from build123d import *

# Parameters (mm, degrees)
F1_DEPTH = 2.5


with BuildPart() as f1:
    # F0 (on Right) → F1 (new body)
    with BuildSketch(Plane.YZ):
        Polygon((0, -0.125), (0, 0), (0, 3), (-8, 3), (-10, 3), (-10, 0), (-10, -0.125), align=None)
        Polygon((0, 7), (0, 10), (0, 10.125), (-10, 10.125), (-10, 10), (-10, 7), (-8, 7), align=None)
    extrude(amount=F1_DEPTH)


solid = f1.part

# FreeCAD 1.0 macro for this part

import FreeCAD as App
import Part
import Sketcher

V = App.Vector


def add_polygon(sketch, points):
    """Adds a closed chain of lines whose ends are joined by coincident constraints."""
    first, n = sketch.GeometryCount, len(points)
    for a, b in zip(points, points[1:] + points[:1]):
        sketch.addGeometry(Part.LineSegment(App.Vector(*a, 0), App.Vector(*b, 0)), False)
    for i in range(n):
        sketch.addConstraint(Sketcher.Constraint("Coincident", first + i, 2, first + (i + 1) % n, 1))

doc = App.newDocument("Part")
body = doc.addObject("PartDesign::Body", "Body")
body.AllowCompound = True

sketch1 = doc.addObject("Sketcher::SketchObject", "Sketch")
body.addObject(sketch1)
sketch1.AttachmentSupport = (doc.YZ_Plane, [""])
sketch1.MapMode = "FlatFace"
add_polygon(sketch1, [(0, -0.125), (0, 3), (-10, 3), (-10, -0.125)])
add_polygon(sketch1, [(0, 7), (0, 10.125), (-10, 10.125), (-10, 7)])
sketch1.addConstraint(Sketcher.Constraint("Vertical", 0))
sketch1.addConstraint(Sketcher.Constraint("Horizontal", 1))
sketch1.addConstraint(Sketcher.Constraint("Vertical", 2))
sketch1.addConstraint(Sketcher.Constraint("Horizontal", 3))
sketch1.addConstraint(Sketcher.Constraint("Vertical", 4))
sketch1.addConstraint(Sketcher.Constraint("Horizontal", 5))
sketch1.addConstraint(Sketcher.Constraint("Vertical", 6))
sketch1.addConstraint(Sketcher.Constraint("Horizontal", 7))
sketch1.addConstraint(Sketcher.Constraint("PointOnObject", 0, 2, -2))
sketch1.addConstraint(Sketcher.Constraint("PointOnObject", 4, 2, -2))
sketch1.addConstraint(Sketcher.Constraint("Vertical", 2, 2, 5, 2))
sketch1.addConstraint(Sketcher.Constraint("Equal", 2, 4))
sketch1.addConstraint(Sketcher.Constraint("DistanceX", 1, 2, 1, 1, 10.0))
sketch1.addConstraint(Sketcher.Constraint("DistanceY", -1, 1, 0, 2, 3.0))
sketch1.addConstraint(Sketcher.Constraint("DistanceY", -1, 1, 6, 2, 7.0))
sketch1.addConstraint(Sketcher.Constraint("DistanceY", 0, 1, 0, 2, 3.125))
pad1 = doc.addObject("PartDesign::Pad", "Pad")
body.addObject(pad1)
pad1.Profile = sketch1
pad1.Length = 2.5

doc.recompute()
